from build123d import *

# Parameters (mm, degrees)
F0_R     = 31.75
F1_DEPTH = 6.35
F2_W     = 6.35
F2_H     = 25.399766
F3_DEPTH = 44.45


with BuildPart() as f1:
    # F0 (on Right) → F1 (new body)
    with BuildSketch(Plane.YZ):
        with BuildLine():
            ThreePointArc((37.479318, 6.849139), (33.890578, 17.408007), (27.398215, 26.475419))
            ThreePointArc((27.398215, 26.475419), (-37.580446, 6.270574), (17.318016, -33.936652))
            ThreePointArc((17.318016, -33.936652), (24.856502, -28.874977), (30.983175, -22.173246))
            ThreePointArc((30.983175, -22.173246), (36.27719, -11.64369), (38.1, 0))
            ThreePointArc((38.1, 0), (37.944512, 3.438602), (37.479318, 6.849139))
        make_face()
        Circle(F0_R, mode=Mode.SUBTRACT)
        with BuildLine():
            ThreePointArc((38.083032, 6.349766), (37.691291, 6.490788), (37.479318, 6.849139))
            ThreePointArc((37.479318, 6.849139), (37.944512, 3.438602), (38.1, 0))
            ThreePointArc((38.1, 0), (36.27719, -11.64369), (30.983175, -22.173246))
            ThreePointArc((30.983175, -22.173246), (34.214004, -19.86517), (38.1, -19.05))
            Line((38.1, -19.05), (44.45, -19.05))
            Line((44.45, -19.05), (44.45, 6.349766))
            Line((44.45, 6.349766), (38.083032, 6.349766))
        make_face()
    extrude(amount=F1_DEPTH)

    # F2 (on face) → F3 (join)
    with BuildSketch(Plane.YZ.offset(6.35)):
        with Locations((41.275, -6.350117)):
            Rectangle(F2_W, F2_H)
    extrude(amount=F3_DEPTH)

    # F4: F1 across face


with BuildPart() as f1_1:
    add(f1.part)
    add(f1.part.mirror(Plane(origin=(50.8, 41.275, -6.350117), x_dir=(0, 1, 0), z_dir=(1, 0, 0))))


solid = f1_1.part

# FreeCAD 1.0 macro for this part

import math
import FreeCAD as App
import Part
import Sketcher

V = App.Vector
Q = App.Units.Quantity

doc = App.newDocument("Part")
body = doc.addObject("PartDesign::Body", "Body")

# Sketch on YZ plane
sketch1 = doc.addObject("Sketcher::SketchObject", "Sketch")
body.addObject(sketch1)
sketch1.AttachmentSupport = (doc.YZ_Plane, [""])
sketch1.MapMode = "FlatFace"
sketch1.addGeometry(Part.ArcOfCircle(Part.Circle(V(-0.000001, 0, 0), V(0, 0, 1), 38.100001), math.radians(10.356214), math.radians(44.018681)), False)
sketch1.addGeometry(Part.ArcOfCircle(Part.Circle(V(0, 0, 0), V(0, 0, 1), 38.1), math.radians(44.018683), math.radians(297.035412)), False)
sketch1.addGeometry(Part.ArcOfCircle(Part.Circle(V(-0.000004, 0.000003, 0), V(0, 0, 1), 38.100005), math.radians(-62.964584), math.radians(-35.589571)), False)
sketch1.addGeometry(Part.ArcOfCircle(Part.Circle(V(38.099999, -28.720043, 0), V(0, 0, 1), 9.670043), math.radians(89.999993), math.radians(137.388912)), False)
sketch1.addGeometry(Part.LineSegment(V(38.1, -19.05, 0), V(44.45, -19.05, 0)), False)
sketch1.addGeometry(Part.LineSegment(V(44.45, -19.05, 0), V(44.45, 6.349766, 0)), False)
sketch1.addGeometry(Part.LineSegment(V(44.45, 6.349766, 0), V(38.083032, 6.349766, 0)), False)
sketch1.addGeometry(Part.ArcOfCircle(Part.Circle(V(38.083032, 6.964381, 0), V(0, 0, 1), 0.614615), math.radians(-169.192902), math.radians(-90.000037)), False)
sketch1.addGeometry(Part.Circle(V(0, 0, 0), V(0, 0, 1), 31.75), False)
sketch1.addConstraint(Sketcher.Constraint("Coincident", 0, 2, 1, 1))
sketch1.addConstraint(Sketcher.Constraint("Coincident", 1, 2, 2, 1))
sketch1.addConstraint(Sketcher.Constraint("Coincident", 2, 2, 3, 2))
sketch1.addConstraint(Sketcher.Constraint("Coincident", 3, 1, 4, 1))
sketch1.addConstraint(Sketcher.Constraint("Coincident", 4, 2, 5, 1))
sketch1.addConstraint(Sketcher.Constraint("Coincident", 5, 2, 6, 1))
sketch1.addConstraint(Sketcher.Constraint("Coincident", 6, 2, 7, 2))
sketch1.addConstraint(Sketcher.Constraint("Coincident", 7, 1, 0, 1))
sketch1.addConstraint(Sketcher.Constraint("Horizontal", 4))
sketch1.addConstraint(Sketcher.Constraint("Vertical", 5))
sketch1.addConstraint(Sketcher.Constraint("Horizontal", 6))
sketch1.addConstraint(Sketcher.Constraint("Coincident", 0, 3, -1, 1))
sketch1.addConstraint(Sketcher.Constraint("Coincident", 1, 3, -1, 1))
sketch1.addConstraint(Sketcher.Constraint("Coincident", 2, 3, -1, 1))
sketch1.addConstraint(Sketcher.Constraint("Coincident", 8, 3, -1, 1))
sketch1.addConstraint(Sketcher.Constraint("Diameter", 8, Q("2.5 in")))
sketch1.addConstraint(Sketcher.Constraint("Radius", 0, Q("1.5 in")))
sketch1.addConstraint(Sketcher.Constraint("DistanceX", 4, 1, 4, 2, Q("0.25 in")))
sketch1.addConstraint(Sketcher.Constraint("DistanceX", -1, 1, 3, 3, Q("1.5 in")))
sketch1.addConstraint(Sketcher.Constraint("DistanceX", -1, 1, 3, 1, Q("1.5 in")))
sketch1.addConstraint(Sketcher.Constraint("DistanceY", 3, 1, -1, 1, Q("0.75 in")))
sketch1.addConstraint(Sketcher.Constraint("Radius", 3, 9.670043))
sketch1.addConstraint(Sketcher.Constraint("Radius", 7, 0.614615))
sketch1.addConstraint(Sketcher.Constraint("DistanceX", 6, 2, 6, 1, 6.366968))
sketch1.addConstraint(Sketcher.Constraint("DistanceY", 5, 1, 5, 2, 25.399766))
sketch1.addConstraint(Sketcher.Constraint("DistanceY", -1, 1, 0, 2, 26.475419))
sketch1.addConstraint(Sketcher.Constraint("DistanceY", -1, 1, 7, 1, 6.849139))
sketch1.addConstraint(Sketcher.Constraint("DistanceY", 1, 2, 3, 3, 5.216609))
pad1 = doc.addObject("PartDesign::Pad", "Pad")
body.addObject(pad1)
pad1.Profile = sketch1
pad1.Length = Q("0.25 in")

# Sketch on YZ plane
sketch2 = doc.addObject("Sketcher::SketchObject", "Sketch001")
body.addObject(sketch2)
sketch2.AttachmentSupport = (doc.YZ_Plane, [""])
sketch2.MapMode = "FlatFace"
sketch2.AttachmentOffset = App.Placement(V(0, 0, 0.25 * 25.4), App.Rotation())
sketch2.addGeometry(Part.LineSegment(V(38, 6, 0), V(38, -19, 0)), False)
sketch2.addGeometry(Part.LineSegment(V(38, -19, 0), V(44, -19, 0)), False)
sketch2.addGeometry(Part.LineSegment(V(44, -19, 0), V(44, 6, 0)), False)
sketch2.addGeometry(Part.LineSegment(V(44, 6, 0), V(38, 6, 0)), False)
sketch2.addConstraint(Sketcher.Constraint("Coincident", 0, 2, 1, 1))
sketch2.addConstraint(Sketcher.Constraint("Coincident", 1, 2, 2, 1))
sketch2.addConstraint(Sketcher.Constraint("Coincident", 2, 2, 3, 1))
sketch2.addConstraint(Sketcher.Constraint("Coincident", 3, 2, 0, 1))
sketch2.addConstraint(Sketcher.Constraint("Vertical", 0))
sketch2.addConstraint(Sketcher.Constraint("Horizontal", 1))
sketch2.addConstraint(Sketcher.Constraint("Vertical", 2))
sketch2.addConstraint(Sketcher.Constraint("Horizontal", 3))
sketch2.addConstraint(Sketcher.Constraint("DistanceX", 1, 1, 1, 2, Q("0.25 in")))
sketch2.addConstraint(Sketcher.Constraint("DistanceX", -1, 1, 0, 2, Q("1.5 in")))
sketch2.addConstraint(Sketcher.Constraint("DistanceY", 0, 2, -1, 1, Q("0.75 in")))
sketch2.addConstraint(Sketcher.Constraint("DistanceY", 0, 2, 0, 1, 25.399766))
pad2 = doc.addObject("PartDesign::Pad", "Pad001")
body.addObject(pad2)
pad2.Profile = sketch2
pad2.Length = Q("1.75 in")
body2 = doc.addObject("PartDesign::Body", "Body001")
doc.recompute()

body2.BaseFeature = body
doc.recompute()

mirroring = doc.addObject("Part::Mirroring", "Mirroring")
mirroring.Source = body
mirroring.Base = V(50.8, 41.275, -6.350117)
mirroring.Normal = V(1, 0, 0)
body3 = doc.addObject("PartDesign::Body", "Body002")
body3.BaseFeature = mirroring
boolean = doc.addObject("PartDesign::Boolean", "Boolean")
body2.addObject(boolean)
boolean.Type = "Fuse"
boolean.addObjects([body3])
doc.recompute()
mirroring.Visibility = False

doc.recompute()
